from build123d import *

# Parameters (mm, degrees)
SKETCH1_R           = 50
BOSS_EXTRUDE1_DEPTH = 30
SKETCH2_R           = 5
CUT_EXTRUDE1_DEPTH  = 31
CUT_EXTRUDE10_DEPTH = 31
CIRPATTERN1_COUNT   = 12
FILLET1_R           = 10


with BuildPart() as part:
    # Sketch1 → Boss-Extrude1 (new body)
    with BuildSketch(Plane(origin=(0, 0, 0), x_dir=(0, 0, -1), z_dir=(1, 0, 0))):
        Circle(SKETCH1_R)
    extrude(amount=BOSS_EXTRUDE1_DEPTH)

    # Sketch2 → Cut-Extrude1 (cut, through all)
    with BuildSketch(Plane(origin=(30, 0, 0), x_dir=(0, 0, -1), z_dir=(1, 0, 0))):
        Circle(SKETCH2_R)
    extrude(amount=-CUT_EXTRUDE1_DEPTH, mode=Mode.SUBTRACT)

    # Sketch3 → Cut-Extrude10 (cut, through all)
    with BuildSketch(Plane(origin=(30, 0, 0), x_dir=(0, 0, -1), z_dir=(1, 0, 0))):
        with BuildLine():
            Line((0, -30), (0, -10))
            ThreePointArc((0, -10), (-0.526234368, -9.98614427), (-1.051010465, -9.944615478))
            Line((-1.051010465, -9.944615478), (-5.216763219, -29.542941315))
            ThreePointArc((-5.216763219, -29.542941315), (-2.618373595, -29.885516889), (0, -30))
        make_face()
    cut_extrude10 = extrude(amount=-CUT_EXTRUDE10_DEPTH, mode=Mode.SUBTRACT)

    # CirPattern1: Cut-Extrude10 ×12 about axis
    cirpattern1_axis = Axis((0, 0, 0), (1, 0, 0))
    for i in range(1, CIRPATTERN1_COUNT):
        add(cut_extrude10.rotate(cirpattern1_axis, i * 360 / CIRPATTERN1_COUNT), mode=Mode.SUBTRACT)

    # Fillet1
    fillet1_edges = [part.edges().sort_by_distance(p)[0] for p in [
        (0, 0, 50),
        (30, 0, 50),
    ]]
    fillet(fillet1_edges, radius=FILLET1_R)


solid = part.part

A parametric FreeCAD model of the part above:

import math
import FreeCAD as App
import Part
import Sketcher
Q = App.Units.Quantity


def edges_at(feature, points):
    """Names of the edges that pass closest to the given points."""
    edges = feature.Shape.Edges
    near = lambda p: min(range(len(edges)), key=lambda i: edges[i].distToShape(Part.Vertex(*p))[0])
    return sorted({f"Edge{near(p) + 1}" for p in points})

doc = App.newDocument("Part")
body = doc.addObject("PartDesign::Body", "Body")

sketch1 = body.newObject("Sketcher::SketchObject", "Sketch")
sketch1.AttachmentSupport = (doc.getObject("YZ_Plane"), [""])
sketch1.MapMode = "FlatFace"
sketch1.addGeometry(Part.Circle(App.Vector(0, 0, 0), App.Vector(0, 0, 1), 50), False)
sketch1.addConstraint([
    Sketcher.Constraint("Coincident", 0, 3, -1, 1),
    Sketcher.Constraint("Diameter", 0, Q("100 mm")),
])
pad1 = body.newObject("PartDesign::Pad", "Pad")
pad1.Profile = sketch1
pad1.Length = 30

sketch2 = body.newObject("Sketcher::SketchObject", "Sketch001")
sketch2.AttachmentSupport = (doc.getObject("YZ_Plane"), [""])
sketch2.MapMode = "FlatFace"
sketch2.AttachmentOffset = App.Placement(App.Vector(0, 0, 30), App.Rotation())
sketch2.addGeometry(Part.Circle(App.Vector(0, 0, 0), App.Vector(0, 0, 1), 5), False)
sketch2.addConstraint([
    Sketcher.Constraint("Coincident", 0, 3, -1, 1),
    Sketcher.Constraint("Diameter", 0, Q("10 mm")),
])
pocket1 = body.newObject("PartDesign::Pocket", "Pocket")
pocket1.Profile = sketch2
pocket1.Type = "ThroughAll"

sketch3 = body.newObject("Sketcher::SketchObject", "Sketch002")
sketch3.AttachmentSupport = (doc.getObject("YZ_Plane"), [""])
sketch3.MapMode = "FlatFace"
sketch3.AttachmentOffset = App.Placement(App.Vector(0, 0, 30), App.Rotation())
sketch3.addGeometry([
    Part.LineSegment(App.Vector(-30, 0, 0), App.Vector(-10, 0, 0)),
    Part.ArcOfCircle(Part.Circle(App.Vector(0, 0, 0), App.Vector(0, 0, 1), 10), math.radians(173.967012), math.radians(180)),
    Part.LineSegment(App.Vector(-9.944615, 1.05101, 0), App.Vector(-29.542941, 5.216763, 0)),
    Part.ArcOfCircle(Part.Circle(App.Vector(0, 0, 0), App.Vector(0, 0, 1), 30), math.radians(169.985808), math.radians(180)),
], False)
sketch3.addConstraint([
    Sketcher.Constraint("Coincident", 0, 2, 1, 2),
    Sketcher.Constraint("Coincident", 1, 1, 2, 1),
    Sketcher.Constraint("Coincident", 2, 2, 3, 1),
    Sketcher.Constraint("Coincident", 3, 2, 0, 1),
    Sketcher.Constraint("Horizontal", 0),
    Sketcher.Constraint("Coincident", 1, 3, -1, 1),
    Sketcher.Constraint("Coincident", 3, 3, -1, 1),
    Sketcher.Constraint("PointOnObject", 0, 2, -1),
    Sketcher.Constraint("Radius", 1, Q("10 mm")),
    Sketcher.Constraint("Radius", 3, Q("30 mm")),
    Sketcher.Constraint("Angle", 2, Q("168 deg")),
    Sketcher.Constraint("DistanceY", -1, 1, 1, 1, Q("1.05101 mm")),
])
pocket2 = body.newObject("PartDesign::Pocket", "Pocket001")
pocket2.Profile = sketch3
pocket2.Type = "ThroughAll"
doc.recompute()

polarpattern = body.newObject("PartDesign::PolarPattern", "PolarPattern")
polarpattern.Originals = [pocket2]
polarpattern.Axis = (doc.getObject("X_Axis"), [""])
polarpattern.Angle = 360
polarpattern.Occurrences = 12
body.Tip = polarpattern
doc.recompute()

fillet = body.newObject("PartDesign::Fillet", "Fillet")
fillet.Base = (polarpattern, edges_at(polarpattern, [(0, 0, 50), (30, 0, 50)]))
fillet.Radius = 10

doc.recompute()
